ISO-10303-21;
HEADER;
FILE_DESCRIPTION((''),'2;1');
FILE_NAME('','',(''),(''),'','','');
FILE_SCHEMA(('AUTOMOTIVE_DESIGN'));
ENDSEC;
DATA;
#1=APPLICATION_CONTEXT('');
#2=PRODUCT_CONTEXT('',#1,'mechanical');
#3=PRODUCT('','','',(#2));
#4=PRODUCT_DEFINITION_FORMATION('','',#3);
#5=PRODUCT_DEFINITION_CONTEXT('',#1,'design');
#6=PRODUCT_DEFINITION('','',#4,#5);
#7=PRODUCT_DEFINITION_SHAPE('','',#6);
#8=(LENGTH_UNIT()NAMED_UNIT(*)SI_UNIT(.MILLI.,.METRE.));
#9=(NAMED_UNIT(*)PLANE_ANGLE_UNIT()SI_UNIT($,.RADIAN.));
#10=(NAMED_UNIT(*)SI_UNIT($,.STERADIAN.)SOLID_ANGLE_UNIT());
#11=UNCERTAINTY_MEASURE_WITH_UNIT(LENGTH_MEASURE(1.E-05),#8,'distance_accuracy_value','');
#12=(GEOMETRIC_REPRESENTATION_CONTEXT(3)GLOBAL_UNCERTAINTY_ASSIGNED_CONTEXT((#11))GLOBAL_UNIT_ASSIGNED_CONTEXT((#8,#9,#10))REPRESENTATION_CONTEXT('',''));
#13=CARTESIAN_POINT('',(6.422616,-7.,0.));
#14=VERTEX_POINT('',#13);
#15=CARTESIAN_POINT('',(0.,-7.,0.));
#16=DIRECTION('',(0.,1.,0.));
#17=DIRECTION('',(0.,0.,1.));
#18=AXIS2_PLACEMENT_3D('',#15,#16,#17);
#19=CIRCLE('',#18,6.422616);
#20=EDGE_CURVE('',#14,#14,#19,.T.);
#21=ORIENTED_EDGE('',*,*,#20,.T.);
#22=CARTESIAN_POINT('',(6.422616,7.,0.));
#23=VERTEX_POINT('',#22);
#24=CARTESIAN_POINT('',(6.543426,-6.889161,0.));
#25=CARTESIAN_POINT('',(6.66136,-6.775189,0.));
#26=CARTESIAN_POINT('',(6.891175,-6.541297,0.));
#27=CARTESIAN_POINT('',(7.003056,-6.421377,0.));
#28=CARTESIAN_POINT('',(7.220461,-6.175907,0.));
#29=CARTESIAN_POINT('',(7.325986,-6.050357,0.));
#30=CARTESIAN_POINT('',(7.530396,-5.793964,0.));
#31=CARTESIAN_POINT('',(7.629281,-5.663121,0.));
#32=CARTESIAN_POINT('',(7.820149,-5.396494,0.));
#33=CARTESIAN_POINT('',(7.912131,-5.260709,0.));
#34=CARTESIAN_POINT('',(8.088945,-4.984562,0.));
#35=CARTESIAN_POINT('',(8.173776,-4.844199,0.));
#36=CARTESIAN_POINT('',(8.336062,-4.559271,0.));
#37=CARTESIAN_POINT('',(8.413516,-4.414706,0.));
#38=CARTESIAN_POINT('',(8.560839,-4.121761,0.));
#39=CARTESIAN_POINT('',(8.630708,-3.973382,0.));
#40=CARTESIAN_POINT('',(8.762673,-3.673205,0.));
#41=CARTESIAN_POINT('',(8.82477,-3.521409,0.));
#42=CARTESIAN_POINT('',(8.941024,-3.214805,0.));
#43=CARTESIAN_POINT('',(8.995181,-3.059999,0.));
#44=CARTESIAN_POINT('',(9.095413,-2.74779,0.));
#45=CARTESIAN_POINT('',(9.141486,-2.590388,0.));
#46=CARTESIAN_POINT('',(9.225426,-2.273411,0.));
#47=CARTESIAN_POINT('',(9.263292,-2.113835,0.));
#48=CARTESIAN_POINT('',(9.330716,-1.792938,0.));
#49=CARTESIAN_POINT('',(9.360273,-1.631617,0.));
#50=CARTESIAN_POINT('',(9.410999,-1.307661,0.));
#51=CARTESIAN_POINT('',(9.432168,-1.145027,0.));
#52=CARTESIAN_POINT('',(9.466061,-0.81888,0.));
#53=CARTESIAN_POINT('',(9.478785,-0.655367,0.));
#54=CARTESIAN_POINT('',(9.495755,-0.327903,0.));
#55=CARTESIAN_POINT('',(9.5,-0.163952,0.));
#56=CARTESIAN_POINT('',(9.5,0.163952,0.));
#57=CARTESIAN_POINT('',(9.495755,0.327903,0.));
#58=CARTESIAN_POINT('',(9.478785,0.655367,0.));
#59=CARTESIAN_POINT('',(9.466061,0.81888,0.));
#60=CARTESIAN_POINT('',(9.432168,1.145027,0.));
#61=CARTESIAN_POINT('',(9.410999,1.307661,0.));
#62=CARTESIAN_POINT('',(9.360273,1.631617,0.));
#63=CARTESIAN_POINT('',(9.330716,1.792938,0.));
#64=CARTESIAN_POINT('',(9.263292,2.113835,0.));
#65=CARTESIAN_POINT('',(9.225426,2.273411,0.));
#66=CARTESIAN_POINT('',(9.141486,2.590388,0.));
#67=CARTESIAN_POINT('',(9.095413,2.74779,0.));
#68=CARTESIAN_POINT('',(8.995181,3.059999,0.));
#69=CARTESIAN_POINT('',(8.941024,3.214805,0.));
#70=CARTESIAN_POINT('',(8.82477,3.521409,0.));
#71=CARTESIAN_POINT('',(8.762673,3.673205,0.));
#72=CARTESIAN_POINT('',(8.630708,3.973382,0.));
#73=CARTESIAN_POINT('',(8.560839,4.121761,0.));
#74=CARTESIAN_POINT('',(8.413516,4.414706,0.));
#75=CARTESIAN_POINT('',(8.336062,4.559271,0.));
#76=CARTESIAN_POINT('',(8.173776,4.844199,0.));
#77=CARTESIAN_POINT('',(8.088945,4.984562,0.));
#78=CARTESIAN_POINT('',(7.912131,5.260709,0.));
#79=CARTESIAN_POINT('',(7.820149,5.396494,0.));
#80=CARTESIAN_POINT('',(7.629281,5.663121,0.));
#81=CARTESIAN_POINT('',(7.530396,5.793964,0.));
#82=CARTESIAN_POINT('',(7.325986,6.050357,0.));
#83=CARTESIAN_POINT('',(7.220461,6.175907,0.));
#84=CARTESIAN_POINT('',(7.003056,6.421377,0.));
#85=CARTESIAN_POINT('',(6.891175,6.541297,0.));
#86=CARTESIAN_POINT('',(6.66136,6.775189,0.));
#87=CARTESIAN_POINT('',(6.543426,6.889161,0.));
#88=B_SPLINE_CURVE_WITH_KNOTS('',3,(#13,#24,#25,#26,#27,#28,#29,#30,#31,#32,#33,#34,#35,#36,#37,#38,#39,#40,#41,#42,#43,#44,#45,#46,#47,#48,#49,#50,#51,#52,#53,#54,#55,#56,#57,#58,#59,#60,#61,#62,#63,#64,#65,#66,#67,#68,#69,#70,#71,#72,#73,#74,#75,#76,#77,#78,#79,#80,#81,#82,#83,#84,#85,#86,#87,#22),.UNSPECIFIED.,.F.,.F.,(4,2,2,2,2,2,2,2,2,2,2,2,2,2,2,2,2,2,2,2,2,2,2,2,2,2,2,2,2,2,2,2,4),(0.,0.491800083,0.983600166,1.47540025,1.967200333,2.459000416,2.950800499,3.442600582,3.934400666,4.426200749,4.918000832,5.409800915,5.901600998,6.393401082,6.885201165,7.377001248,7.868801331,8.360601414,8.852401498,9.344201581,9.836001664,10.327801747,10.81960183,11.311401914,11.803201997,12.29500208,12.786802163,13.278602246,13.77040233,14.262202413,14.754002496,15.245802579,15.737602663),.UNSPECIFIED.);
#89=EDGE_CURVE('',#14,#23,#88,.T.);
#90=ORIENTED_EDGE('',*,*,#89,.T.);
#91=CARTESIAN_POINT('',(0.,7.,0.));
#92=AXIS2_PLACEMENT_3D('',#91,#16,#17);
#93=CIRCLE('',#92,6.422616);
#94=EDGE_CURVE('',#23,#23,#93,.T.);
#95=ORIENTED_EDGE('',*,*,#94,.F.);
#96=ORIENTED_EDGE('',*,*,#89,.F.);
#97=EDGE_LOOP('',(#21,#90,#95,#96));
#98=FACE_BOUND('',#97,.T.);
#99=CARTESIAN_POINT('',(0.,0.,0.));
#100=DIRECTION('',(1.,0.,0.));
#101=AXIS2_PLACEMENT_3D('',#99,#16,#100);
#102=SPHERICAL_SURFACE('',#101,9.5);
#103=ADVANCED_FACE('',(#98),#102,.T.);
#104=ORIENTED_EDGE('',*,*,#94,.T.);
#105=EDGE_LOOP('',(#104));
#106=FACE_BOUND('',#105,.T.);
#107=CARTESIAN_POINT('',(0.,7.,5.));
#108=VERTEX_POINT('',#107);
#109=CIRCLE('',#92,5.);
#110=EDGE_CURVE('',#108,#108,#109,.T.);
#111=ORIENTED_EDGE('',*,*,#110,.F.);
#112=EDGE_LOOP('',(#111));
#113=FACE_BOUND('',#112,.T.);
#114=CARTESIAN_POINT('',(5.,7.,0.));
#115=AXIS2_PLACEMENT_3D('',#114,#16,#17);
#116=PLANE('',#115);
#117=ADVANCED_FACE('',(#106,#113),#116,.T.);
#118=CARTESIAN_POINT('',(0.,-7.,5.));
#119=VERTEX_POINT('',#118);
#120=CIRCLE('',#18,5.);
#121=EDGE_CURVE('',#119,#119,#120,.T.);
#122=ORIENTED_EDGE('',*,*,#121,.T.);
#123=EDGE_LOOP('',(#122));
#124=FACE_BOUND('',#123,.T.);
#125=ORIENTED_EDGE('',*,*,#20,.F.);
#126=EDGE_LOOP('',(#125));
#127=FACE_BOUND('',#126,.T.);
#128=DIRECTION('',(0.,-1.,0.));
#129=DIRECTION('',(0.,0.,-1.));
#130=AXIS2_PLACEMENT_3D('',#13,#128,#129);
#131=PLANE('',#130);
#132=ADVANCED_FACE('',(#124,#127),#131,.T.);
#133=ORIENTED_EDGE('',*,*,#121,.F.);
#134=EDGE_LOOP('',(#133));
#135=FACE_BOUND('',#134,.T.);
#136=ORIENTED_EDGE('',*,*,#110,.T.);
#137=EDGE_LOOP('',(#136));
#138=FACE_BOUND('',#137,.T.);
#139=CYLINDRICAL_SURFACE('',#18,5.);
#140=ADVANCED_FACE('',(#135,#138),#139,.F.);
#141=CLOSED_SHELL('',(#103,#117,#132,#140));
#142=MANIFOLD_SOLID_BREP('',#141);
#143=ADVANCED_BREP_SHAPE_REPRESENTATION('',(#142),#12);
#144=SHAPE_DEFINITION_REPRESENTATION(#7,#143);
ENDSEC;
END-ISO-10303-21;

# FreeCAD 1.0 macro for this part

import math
import FreeCAD as App
import Part
import Sketcher

doc = App.newDocument("Part")
body = doc.addObject("PartDesign::Body", "Body")

# Sketch on XY plane
sketch1 = body.newObject("Sketcher::SketchObject", "Sketch")
sketch1.AttachmentSupport = (doc.getObject("XY_Plane"), [""])
sketch1.MapMode = "FlatFace"
sketch1.addGeometry([
    Part.LineSegment(App.Vector(6.4, -7, 0), App.Vector(5, -7, 0)),
    Part.LineSegment(App.Vector(5, -7, 0), App.Vector(5, 7, 0)),
    Part.LineSegment(App.Vector(5, 7, 0), App.Vector(6.4, 7, 0)),
    Part.ArcOfCircle(Part.Circle(App.Vector(0, 0, 0), App.Vector(0, 0, 1), 9.5), math.radians(-47), math.radians(47)),
], False)
sketch1.addConstraint([
    Sketcher.Constraint("Coincident", 0, 2, 1, 1),
    Sketcher.Constraint("Coincident", 1, 2, 2, 1),
    Sketcher.Constraint("Coincident", 2, 2, 3, 2),
    Sketcher.Constraint("Coincident", 3, 1, 0, 1),
    Sketcher.Constraint("Horizontal", 0),
    Sketcher.Constraint("Vertical", 1),
    Sketcher.Constraint("Horizontal", 2),
    Sketcher.Constraint("Coincident", 3, 3, -1, 1),
    Sketcher.Constraint("Vertical", 2, 2, 3, 1),
    Sketcher.Constraint("Radius", 3, 9.5),
    Sketcher.Constraint("DistanceY", 1, 1, 1, 2, 14.0),
    Sketcher.Constraint("DistanceX", -1, 1, 0, 2, 5.0),
])
revolution = body.newObject("PartDesign::Revolution", "Revolution")
revolution.Profile = sketch1
revolution.ReferenceAxis = (sketch1, ["V_Axis"])
revolution.Angle = 360

doc.recompute()
